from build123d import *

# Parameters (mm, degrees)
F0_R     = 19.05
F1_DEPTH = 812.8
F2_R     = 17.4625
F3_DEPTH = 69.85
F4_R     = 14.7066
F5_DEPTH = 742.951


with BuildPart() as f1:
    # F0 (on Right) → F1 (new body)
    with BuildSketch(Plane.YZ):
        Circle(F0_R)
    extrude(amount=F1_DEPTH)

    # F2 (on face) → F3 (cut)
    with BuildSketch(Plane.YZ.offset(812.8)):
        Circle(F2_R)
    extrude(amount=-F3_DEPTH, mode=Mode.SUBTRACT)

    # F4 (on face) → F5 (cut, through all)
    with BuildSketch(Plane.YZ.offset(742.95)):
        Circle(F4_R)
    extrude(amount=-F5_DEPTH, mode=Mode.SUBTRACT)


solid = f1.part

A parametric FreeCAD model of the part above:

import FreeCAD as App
import Part
import Sketcher
from FreeCAD import Vector
Q = App.Units.Quantity

doc = App.newDocument("Part")
body = doc.addObject("PartDesign::Body", "Body")

# Sketch on YZ plane
sketch1 = body.newObject("Sketcher::SketchObject", "Sketch")
sketch1.AttachmentSupport = (doc.getObject("YZ_Plane"), [""])
sketch1.MapMode = "FlatFace"
sketch1.addGeometry(Part.Circle(Vector(0, 0, 0), Vector(0, 0, 1), 19.05), False)
sketch1.addConstraint([
    Sketcher.Constraint("Coincident", 0, 3, -1, 1),
    Sketcher.Constraint("Diameter", 0, Q("1.5 in")),
])
pad1 = body.newObject("PartDesign::Pad", "Pad")
pad1.Profile = sketch1
pad1.Length = Q("32 in")

# Sketch on YZ plane
sketch2 = body.newObject("Sketcher::SketchObject", "Sketch001")
sketch2.AttachmentSupport = (doc.getObject("YZ_Plane"), [""])
sketch2.MapMode = "FlatFace"
sketch2.AttachmentOffset = App.Placement(Vector(0, 0, 32 * 25.4), App.Rotation())
sketch2.addGeometry(Part.Circle(Vector(0, 0, 0), Vector(0, 0, 1), 17.4625), False)
sketch2.addConstraint([
    Sketcher.Constraint("Coincident", 0, 3, -1, 1),
    Sketcher.Constraint("Diameter", 0, Q("1.375 in")),
])
pocket1 = body.newObject("PartDesign::Pocket", "Pocket")
pocket1.Profile = sketch2
pocket1.Length = Q("2.75 in")

# Sketch on YZ plane
sketch3 = body.newObject("Sketcher::SketchObject", "Sketch002")
sketch3.AttachmentSupport = (doc.getObject("YZ_Plane"), [""])
sketch3.MapMode = "FlatFace"
sketch3.AttachmentOffset = App.Placement(Vector(0, 0, 29.25 * 25.4), App.Rotation())
sketch3.addGeometry(Part.Circle(Vector(0, 0, 0), Vector(0, 0, 1), 14.7066), False)
sketch3.addConstraint([
    Sketcher.Constraint("Coincident", 0, 3, -1, 1),
    Sketcher.Constraint("Diameter", 0, Q("1.158 in")),
])
pocket2 = body.newObject("PartDesign::Pocket", "Pocket001")
pocket2.Profile = sketch3
pocket2.Type = "ThroughAll"

doc.recompute()
